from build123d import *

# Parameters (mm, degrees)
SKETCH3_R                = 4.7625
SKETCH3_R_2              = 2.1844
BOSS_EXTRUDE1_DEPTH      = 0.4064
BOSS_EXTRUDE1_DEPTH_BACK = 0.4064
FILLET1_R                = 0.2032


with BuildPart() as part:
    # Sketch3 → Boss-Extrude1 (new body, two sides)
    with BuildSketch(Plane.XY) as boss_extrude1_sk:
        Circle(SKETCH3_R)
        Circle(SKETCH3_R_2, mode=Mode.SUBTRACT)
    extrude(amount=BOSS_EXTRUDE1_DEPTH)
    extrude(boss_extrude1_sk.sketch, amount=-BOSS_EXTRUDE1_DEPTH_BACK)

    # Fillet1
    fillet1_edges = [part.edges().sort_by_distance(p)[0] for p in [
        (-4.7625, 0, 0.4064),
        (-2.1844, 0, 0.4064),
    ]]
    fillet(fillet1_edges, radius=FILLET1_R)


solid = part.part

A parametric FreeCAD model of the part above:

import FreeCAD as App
import Part
import Sketcher
from FreeCAD import Vector
Q = App.Units.Quantity


def edges_at(feature, points):
    """Names of the edges that pass closest to the given points."""
    edges = feature.Shape.Edges
    near = lambda p: min(range(len(edges)), key=lambda i: edges[i].distToShape(Part.Vertex(*p))[0])
    return sorted({f"Edge{near(p) + 1}" for p in points})

doc = App.newDocument("Part")
body = doc.addObject("PartDesign::Body", "Body")

# Sketch on XY plane
sketch1 = body.newObject("Sketcher::SketchObject", "Sketch")
sketch1.AttachmentSupport = (doc.getObject("XY_Plane"), [""])
sketch1.MapMode = "FlatFace"
sketch1.addGeometry([
    Part.Circle(Vector(0, 0, 0), Vector(0, 0, 1), 4.8),
    Part.Circle(Vector(0, 0, 0), Vector(0, 0, 1), 2.2),
], False)
sketch1.addConstraint([
    Sketcher.Constraint("Coincident", 0, 3, -1, 1),
    Sketcher.Constraint("Coincident", 1, 3, -1, 1),
    Sketcher.Constraint("Diameter", 0, Q("0.375 in")),
    Sketcher.Constraint("Diameter", 1, Q("0.172 in")),
])
pad1 = body.newObject("PartDesign::Pad", "Pad")
pad1.Profile = sketch1
pad1.Type = "TwoLengths"
pad1.Length = Q("0.016 in")
pad1.Length2 = Q("0.016 in")
doc.recompute()

fillet = body.newObject("PartDesign::Fillet", "Fillet")
fillet.Base = (pad1, edges_at(pad1, [(-4.763, 0, 0.406), (-2.184, 0, 0.406)]))
fillet.Radius = Q("0.008 in")

doc.recompute()
